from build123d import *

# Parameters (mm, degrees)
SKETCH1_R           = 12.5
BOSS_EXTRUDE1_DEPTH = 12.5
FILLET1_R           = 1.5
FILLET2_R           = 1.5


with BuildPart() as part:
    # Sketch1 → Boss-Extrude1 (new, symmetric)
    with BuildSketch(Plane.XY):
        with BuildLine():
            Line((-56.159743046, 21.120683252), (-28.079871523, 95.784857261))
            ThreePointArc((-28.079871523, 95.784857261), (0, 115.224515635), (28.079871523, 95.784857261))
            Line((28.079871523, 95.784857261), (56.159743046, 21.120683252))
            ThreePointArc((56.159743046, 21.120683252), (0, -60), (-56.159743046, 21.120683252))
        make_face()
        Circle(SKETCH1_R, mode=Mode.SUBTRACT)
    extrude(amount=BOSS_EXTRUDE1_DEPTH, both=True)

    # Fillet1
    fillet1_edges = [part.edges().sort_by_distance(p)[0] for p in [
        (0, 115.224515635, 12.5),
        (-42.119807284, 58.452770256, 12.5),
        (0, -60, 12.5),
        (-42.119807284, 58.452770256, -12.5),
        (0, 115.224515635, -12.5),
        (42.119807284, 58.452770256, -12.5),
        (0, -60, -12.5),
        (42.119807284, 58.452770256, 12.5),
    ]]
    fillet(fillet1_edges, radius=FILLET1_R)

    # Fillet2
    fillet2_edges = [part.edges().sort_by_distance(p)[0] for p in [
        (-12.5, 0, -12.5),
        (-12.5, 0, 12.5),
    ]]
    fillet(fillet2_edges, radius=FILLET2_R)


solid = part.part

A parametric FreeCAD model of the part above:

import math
import FreeCAD as App
import Part
import Sketcher

V = App.Vector


def edges_at(feature, points):
    """Names of the edges that pass closest to the given points."""
    edges = feature.Shape.Edges
    near = lambda p: min(range(len(edges)), key=lambda i: edges[i].distToShape(Part.Vertex(*p))[0])
    return sorted({f"Edge{near(p) + 1}" for p in points})

doc = App.newDocument("Part")
body = doc.addObject("PartDesign::Body", "Body")

# Sketch on XY plane
sketch1 = body.newObject("Sketcher::SketchObject", "Sketch")
sketch1.AttachmentSupport = (doc.getObject("XY_Plane"), [""])
sketch1.MapMode = "FlatFace"
sketch1.addGeometry([
    Part.LineSegment(V(-28, 96, 0), V(-56, 21, 0)),  # 0
    Part.ArcOfCircle(Part.Circle(V(0, 0, 0), V(0, 0, 1), 60), math.radians(159), math.radians(381)),  # 1
    Part.LineSegment(V(56, 21, 0), V(28, 96, 0)),  # 2
    Part.ArcOfCircle(Part.Circle(V(0, 85, 0), V(0, 0, 1), 30), math.radians(21), math.radians(159)),  # 3
    Part.Circle(V(0, 0, 0), V(0, 0, 1), 12),  # 4
], False)
sketch1.addConstraint([
    Sketcher.Constraint("Tangent", 0, 2, 1, 1),
    Sketcher.Constraint("Tangent", 1, 2, 2, 1),
    Sketcher.Constraint("Tangent", 2, 2, 3, 1),
    Sketcher.Constraint("Tangent", 3, 2, 0, 1),
    Sketcher.Constraint("Coincident", 1, 3, -1, 1),
    Sketcher.Constraint("Coincident", 4, 3, -1, 1),
    Sketcher.Constraint("PointOnObject", 3, 3, -2),
    Sketcher.Constraint("Diameter", 4, 25.0),
    Sketcher.Constraint("Radius", 1, 60.0),
    Sketcher.Constraint("Radius", 3, 30.0),
    Sketcher.Constraint("Distance", 0, 79.769782),
])
pad1 = body.newObject("PartDesign::Pad", "Pad")
pad1.Profile = sketch1
pad1.Length = 25
pad1.Midplane = True
doc.recompute()

fillet = body.newObject("PartDesign::Fillet", "Fillet")
fillet.Base = (pad1, edges_at(pad1, [
    (0, 115.225, 12.5),
    (-42.12, 58.453, 12.5),
    (0, -60, 12.5),
    (-42.12, 58.453, -12.5),
    (0, 115.225, -12.5),
    (42.12, 58.453, -12.5),
    (0, -60, -12.5),
    (42.12, 58.453, 12.5),
]))
fillet.Radius = 1.5
doc.recompute()

fillet2 = body.newObject("PartDesign::Fillet", "Fillet001")
fillet2.Base = (fillet, edges_at(fillet, [(-12.5, 0, -12.5), (-12.5, 0, 12.5)]))
fillet2.Radius = 1.5

doc.recompute()
